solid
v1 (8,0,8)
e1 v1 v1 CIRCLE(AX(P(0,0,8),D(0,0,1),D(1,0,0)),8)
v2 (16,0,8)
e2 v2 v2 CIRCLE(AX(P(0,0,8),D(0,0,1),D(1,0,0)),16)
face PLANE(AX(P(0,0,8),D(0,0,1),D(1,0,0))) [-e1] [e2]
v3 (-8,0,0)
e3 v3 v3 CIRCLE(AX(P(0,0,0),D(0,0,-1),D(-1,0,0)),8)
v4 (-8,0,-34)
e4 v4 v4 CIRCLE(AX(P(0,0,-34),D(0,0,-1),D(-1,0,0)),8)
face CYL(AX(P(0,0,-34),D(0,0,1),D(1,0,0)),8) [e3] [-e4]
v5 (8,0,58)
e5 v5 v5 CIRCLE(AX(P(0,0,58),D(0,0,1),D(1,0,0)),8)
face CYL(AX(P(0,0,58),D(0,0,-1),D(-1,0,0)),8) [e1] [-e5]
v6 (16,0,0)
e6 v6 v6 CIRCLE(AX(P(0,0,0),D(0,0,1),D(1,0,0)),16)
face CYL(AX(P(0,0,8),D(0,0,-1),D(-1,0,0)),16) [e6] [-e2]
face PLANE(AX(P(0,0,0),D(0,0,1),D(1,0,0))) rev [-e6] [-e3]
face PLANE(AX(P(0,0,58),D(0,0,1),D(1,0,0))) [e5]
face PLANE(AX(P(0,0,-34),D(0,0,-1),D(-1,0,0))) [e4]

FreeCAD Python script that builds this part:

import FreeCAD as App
import Part
import Sketcher

V = App.Vector
Q = App.Units.Quantity

doc = App.newDocument("Part")
body = doc.addObject("PartDesign::Body", "Body")

sketch1 = body.newObject("Sketcher::SketchObject", "Sketch")
sketch1.AttachmentSupport = (doc.getObject("XY_Plane"), [""])
sketch1.MapMode = "FlatFace"
sketch1.addGeometry(Part.Circle(V(0, 0, 0), V(0, 0, 1), 16), False)
sketch1.addConstraint(Sketcher.Constraint("Coincident", 0, 3, -1, 1))
sketch1.addConstraint(Sketcher.Constraint("Diameter", 0, Q("32 mm")))
pad1 = body.newObject("PartDesign::Pad", "Pad")
pad1.Profile = sketch1
pad1.Length = 8

sketch2 = body.newObject("Sketcher::SketchObject", "Sketch001")
sketch2.AttachmentSupport = (doc.getObject("XY_Plane"), [""])
sketch2.MapMode = "FlatFace"
sketch2.AttachmentOffset = App.Placement(V(0, 0, 8), App.Rotation())
sketch2.addGeometry(Part.Circle(V(0, 0, 0), V(0, 0, 1), 8), False)
sketch2.addConstraint(Sketcher.Constraint("Coincident", 0, 3, -1, 1))
sketch2.addConstraint(Sketcher.Constraint("Diameter", 0, Q("16 mm")))
pad2 = body.newObject("PartDesign::Pad", "Pad001")
pad2.Profile = sketch2
pad2.Length = 50

sketch3 = body.newObject("Sketcher::SketchObject", "Sketch002")
sketch3.AttachmentSupport = (doc.getObject("XY_Plane"), [""])
sketch3.MapMode = "FlatFace"
sketch3.AttachmentOffset = App.Placement(V(0, 0, -34), App.Rotation())
sketch3.addGeometry(Part.Circle(V(0, 0, 0), V(0, 0, 1), 8), False)
sketch3.addConstraint(Sketcher.Constraint("Coincident", 0, 3, -1, 1))
sketch3.addConstraint(Sketcher.Constraint("Diameter", 0, Q("16 mm")))
pad3 = body.newObject("PartDesign::Pad", "Pad002")
pad3.Profile = sketch3
pad3.Length = 34

doc.recompute()
